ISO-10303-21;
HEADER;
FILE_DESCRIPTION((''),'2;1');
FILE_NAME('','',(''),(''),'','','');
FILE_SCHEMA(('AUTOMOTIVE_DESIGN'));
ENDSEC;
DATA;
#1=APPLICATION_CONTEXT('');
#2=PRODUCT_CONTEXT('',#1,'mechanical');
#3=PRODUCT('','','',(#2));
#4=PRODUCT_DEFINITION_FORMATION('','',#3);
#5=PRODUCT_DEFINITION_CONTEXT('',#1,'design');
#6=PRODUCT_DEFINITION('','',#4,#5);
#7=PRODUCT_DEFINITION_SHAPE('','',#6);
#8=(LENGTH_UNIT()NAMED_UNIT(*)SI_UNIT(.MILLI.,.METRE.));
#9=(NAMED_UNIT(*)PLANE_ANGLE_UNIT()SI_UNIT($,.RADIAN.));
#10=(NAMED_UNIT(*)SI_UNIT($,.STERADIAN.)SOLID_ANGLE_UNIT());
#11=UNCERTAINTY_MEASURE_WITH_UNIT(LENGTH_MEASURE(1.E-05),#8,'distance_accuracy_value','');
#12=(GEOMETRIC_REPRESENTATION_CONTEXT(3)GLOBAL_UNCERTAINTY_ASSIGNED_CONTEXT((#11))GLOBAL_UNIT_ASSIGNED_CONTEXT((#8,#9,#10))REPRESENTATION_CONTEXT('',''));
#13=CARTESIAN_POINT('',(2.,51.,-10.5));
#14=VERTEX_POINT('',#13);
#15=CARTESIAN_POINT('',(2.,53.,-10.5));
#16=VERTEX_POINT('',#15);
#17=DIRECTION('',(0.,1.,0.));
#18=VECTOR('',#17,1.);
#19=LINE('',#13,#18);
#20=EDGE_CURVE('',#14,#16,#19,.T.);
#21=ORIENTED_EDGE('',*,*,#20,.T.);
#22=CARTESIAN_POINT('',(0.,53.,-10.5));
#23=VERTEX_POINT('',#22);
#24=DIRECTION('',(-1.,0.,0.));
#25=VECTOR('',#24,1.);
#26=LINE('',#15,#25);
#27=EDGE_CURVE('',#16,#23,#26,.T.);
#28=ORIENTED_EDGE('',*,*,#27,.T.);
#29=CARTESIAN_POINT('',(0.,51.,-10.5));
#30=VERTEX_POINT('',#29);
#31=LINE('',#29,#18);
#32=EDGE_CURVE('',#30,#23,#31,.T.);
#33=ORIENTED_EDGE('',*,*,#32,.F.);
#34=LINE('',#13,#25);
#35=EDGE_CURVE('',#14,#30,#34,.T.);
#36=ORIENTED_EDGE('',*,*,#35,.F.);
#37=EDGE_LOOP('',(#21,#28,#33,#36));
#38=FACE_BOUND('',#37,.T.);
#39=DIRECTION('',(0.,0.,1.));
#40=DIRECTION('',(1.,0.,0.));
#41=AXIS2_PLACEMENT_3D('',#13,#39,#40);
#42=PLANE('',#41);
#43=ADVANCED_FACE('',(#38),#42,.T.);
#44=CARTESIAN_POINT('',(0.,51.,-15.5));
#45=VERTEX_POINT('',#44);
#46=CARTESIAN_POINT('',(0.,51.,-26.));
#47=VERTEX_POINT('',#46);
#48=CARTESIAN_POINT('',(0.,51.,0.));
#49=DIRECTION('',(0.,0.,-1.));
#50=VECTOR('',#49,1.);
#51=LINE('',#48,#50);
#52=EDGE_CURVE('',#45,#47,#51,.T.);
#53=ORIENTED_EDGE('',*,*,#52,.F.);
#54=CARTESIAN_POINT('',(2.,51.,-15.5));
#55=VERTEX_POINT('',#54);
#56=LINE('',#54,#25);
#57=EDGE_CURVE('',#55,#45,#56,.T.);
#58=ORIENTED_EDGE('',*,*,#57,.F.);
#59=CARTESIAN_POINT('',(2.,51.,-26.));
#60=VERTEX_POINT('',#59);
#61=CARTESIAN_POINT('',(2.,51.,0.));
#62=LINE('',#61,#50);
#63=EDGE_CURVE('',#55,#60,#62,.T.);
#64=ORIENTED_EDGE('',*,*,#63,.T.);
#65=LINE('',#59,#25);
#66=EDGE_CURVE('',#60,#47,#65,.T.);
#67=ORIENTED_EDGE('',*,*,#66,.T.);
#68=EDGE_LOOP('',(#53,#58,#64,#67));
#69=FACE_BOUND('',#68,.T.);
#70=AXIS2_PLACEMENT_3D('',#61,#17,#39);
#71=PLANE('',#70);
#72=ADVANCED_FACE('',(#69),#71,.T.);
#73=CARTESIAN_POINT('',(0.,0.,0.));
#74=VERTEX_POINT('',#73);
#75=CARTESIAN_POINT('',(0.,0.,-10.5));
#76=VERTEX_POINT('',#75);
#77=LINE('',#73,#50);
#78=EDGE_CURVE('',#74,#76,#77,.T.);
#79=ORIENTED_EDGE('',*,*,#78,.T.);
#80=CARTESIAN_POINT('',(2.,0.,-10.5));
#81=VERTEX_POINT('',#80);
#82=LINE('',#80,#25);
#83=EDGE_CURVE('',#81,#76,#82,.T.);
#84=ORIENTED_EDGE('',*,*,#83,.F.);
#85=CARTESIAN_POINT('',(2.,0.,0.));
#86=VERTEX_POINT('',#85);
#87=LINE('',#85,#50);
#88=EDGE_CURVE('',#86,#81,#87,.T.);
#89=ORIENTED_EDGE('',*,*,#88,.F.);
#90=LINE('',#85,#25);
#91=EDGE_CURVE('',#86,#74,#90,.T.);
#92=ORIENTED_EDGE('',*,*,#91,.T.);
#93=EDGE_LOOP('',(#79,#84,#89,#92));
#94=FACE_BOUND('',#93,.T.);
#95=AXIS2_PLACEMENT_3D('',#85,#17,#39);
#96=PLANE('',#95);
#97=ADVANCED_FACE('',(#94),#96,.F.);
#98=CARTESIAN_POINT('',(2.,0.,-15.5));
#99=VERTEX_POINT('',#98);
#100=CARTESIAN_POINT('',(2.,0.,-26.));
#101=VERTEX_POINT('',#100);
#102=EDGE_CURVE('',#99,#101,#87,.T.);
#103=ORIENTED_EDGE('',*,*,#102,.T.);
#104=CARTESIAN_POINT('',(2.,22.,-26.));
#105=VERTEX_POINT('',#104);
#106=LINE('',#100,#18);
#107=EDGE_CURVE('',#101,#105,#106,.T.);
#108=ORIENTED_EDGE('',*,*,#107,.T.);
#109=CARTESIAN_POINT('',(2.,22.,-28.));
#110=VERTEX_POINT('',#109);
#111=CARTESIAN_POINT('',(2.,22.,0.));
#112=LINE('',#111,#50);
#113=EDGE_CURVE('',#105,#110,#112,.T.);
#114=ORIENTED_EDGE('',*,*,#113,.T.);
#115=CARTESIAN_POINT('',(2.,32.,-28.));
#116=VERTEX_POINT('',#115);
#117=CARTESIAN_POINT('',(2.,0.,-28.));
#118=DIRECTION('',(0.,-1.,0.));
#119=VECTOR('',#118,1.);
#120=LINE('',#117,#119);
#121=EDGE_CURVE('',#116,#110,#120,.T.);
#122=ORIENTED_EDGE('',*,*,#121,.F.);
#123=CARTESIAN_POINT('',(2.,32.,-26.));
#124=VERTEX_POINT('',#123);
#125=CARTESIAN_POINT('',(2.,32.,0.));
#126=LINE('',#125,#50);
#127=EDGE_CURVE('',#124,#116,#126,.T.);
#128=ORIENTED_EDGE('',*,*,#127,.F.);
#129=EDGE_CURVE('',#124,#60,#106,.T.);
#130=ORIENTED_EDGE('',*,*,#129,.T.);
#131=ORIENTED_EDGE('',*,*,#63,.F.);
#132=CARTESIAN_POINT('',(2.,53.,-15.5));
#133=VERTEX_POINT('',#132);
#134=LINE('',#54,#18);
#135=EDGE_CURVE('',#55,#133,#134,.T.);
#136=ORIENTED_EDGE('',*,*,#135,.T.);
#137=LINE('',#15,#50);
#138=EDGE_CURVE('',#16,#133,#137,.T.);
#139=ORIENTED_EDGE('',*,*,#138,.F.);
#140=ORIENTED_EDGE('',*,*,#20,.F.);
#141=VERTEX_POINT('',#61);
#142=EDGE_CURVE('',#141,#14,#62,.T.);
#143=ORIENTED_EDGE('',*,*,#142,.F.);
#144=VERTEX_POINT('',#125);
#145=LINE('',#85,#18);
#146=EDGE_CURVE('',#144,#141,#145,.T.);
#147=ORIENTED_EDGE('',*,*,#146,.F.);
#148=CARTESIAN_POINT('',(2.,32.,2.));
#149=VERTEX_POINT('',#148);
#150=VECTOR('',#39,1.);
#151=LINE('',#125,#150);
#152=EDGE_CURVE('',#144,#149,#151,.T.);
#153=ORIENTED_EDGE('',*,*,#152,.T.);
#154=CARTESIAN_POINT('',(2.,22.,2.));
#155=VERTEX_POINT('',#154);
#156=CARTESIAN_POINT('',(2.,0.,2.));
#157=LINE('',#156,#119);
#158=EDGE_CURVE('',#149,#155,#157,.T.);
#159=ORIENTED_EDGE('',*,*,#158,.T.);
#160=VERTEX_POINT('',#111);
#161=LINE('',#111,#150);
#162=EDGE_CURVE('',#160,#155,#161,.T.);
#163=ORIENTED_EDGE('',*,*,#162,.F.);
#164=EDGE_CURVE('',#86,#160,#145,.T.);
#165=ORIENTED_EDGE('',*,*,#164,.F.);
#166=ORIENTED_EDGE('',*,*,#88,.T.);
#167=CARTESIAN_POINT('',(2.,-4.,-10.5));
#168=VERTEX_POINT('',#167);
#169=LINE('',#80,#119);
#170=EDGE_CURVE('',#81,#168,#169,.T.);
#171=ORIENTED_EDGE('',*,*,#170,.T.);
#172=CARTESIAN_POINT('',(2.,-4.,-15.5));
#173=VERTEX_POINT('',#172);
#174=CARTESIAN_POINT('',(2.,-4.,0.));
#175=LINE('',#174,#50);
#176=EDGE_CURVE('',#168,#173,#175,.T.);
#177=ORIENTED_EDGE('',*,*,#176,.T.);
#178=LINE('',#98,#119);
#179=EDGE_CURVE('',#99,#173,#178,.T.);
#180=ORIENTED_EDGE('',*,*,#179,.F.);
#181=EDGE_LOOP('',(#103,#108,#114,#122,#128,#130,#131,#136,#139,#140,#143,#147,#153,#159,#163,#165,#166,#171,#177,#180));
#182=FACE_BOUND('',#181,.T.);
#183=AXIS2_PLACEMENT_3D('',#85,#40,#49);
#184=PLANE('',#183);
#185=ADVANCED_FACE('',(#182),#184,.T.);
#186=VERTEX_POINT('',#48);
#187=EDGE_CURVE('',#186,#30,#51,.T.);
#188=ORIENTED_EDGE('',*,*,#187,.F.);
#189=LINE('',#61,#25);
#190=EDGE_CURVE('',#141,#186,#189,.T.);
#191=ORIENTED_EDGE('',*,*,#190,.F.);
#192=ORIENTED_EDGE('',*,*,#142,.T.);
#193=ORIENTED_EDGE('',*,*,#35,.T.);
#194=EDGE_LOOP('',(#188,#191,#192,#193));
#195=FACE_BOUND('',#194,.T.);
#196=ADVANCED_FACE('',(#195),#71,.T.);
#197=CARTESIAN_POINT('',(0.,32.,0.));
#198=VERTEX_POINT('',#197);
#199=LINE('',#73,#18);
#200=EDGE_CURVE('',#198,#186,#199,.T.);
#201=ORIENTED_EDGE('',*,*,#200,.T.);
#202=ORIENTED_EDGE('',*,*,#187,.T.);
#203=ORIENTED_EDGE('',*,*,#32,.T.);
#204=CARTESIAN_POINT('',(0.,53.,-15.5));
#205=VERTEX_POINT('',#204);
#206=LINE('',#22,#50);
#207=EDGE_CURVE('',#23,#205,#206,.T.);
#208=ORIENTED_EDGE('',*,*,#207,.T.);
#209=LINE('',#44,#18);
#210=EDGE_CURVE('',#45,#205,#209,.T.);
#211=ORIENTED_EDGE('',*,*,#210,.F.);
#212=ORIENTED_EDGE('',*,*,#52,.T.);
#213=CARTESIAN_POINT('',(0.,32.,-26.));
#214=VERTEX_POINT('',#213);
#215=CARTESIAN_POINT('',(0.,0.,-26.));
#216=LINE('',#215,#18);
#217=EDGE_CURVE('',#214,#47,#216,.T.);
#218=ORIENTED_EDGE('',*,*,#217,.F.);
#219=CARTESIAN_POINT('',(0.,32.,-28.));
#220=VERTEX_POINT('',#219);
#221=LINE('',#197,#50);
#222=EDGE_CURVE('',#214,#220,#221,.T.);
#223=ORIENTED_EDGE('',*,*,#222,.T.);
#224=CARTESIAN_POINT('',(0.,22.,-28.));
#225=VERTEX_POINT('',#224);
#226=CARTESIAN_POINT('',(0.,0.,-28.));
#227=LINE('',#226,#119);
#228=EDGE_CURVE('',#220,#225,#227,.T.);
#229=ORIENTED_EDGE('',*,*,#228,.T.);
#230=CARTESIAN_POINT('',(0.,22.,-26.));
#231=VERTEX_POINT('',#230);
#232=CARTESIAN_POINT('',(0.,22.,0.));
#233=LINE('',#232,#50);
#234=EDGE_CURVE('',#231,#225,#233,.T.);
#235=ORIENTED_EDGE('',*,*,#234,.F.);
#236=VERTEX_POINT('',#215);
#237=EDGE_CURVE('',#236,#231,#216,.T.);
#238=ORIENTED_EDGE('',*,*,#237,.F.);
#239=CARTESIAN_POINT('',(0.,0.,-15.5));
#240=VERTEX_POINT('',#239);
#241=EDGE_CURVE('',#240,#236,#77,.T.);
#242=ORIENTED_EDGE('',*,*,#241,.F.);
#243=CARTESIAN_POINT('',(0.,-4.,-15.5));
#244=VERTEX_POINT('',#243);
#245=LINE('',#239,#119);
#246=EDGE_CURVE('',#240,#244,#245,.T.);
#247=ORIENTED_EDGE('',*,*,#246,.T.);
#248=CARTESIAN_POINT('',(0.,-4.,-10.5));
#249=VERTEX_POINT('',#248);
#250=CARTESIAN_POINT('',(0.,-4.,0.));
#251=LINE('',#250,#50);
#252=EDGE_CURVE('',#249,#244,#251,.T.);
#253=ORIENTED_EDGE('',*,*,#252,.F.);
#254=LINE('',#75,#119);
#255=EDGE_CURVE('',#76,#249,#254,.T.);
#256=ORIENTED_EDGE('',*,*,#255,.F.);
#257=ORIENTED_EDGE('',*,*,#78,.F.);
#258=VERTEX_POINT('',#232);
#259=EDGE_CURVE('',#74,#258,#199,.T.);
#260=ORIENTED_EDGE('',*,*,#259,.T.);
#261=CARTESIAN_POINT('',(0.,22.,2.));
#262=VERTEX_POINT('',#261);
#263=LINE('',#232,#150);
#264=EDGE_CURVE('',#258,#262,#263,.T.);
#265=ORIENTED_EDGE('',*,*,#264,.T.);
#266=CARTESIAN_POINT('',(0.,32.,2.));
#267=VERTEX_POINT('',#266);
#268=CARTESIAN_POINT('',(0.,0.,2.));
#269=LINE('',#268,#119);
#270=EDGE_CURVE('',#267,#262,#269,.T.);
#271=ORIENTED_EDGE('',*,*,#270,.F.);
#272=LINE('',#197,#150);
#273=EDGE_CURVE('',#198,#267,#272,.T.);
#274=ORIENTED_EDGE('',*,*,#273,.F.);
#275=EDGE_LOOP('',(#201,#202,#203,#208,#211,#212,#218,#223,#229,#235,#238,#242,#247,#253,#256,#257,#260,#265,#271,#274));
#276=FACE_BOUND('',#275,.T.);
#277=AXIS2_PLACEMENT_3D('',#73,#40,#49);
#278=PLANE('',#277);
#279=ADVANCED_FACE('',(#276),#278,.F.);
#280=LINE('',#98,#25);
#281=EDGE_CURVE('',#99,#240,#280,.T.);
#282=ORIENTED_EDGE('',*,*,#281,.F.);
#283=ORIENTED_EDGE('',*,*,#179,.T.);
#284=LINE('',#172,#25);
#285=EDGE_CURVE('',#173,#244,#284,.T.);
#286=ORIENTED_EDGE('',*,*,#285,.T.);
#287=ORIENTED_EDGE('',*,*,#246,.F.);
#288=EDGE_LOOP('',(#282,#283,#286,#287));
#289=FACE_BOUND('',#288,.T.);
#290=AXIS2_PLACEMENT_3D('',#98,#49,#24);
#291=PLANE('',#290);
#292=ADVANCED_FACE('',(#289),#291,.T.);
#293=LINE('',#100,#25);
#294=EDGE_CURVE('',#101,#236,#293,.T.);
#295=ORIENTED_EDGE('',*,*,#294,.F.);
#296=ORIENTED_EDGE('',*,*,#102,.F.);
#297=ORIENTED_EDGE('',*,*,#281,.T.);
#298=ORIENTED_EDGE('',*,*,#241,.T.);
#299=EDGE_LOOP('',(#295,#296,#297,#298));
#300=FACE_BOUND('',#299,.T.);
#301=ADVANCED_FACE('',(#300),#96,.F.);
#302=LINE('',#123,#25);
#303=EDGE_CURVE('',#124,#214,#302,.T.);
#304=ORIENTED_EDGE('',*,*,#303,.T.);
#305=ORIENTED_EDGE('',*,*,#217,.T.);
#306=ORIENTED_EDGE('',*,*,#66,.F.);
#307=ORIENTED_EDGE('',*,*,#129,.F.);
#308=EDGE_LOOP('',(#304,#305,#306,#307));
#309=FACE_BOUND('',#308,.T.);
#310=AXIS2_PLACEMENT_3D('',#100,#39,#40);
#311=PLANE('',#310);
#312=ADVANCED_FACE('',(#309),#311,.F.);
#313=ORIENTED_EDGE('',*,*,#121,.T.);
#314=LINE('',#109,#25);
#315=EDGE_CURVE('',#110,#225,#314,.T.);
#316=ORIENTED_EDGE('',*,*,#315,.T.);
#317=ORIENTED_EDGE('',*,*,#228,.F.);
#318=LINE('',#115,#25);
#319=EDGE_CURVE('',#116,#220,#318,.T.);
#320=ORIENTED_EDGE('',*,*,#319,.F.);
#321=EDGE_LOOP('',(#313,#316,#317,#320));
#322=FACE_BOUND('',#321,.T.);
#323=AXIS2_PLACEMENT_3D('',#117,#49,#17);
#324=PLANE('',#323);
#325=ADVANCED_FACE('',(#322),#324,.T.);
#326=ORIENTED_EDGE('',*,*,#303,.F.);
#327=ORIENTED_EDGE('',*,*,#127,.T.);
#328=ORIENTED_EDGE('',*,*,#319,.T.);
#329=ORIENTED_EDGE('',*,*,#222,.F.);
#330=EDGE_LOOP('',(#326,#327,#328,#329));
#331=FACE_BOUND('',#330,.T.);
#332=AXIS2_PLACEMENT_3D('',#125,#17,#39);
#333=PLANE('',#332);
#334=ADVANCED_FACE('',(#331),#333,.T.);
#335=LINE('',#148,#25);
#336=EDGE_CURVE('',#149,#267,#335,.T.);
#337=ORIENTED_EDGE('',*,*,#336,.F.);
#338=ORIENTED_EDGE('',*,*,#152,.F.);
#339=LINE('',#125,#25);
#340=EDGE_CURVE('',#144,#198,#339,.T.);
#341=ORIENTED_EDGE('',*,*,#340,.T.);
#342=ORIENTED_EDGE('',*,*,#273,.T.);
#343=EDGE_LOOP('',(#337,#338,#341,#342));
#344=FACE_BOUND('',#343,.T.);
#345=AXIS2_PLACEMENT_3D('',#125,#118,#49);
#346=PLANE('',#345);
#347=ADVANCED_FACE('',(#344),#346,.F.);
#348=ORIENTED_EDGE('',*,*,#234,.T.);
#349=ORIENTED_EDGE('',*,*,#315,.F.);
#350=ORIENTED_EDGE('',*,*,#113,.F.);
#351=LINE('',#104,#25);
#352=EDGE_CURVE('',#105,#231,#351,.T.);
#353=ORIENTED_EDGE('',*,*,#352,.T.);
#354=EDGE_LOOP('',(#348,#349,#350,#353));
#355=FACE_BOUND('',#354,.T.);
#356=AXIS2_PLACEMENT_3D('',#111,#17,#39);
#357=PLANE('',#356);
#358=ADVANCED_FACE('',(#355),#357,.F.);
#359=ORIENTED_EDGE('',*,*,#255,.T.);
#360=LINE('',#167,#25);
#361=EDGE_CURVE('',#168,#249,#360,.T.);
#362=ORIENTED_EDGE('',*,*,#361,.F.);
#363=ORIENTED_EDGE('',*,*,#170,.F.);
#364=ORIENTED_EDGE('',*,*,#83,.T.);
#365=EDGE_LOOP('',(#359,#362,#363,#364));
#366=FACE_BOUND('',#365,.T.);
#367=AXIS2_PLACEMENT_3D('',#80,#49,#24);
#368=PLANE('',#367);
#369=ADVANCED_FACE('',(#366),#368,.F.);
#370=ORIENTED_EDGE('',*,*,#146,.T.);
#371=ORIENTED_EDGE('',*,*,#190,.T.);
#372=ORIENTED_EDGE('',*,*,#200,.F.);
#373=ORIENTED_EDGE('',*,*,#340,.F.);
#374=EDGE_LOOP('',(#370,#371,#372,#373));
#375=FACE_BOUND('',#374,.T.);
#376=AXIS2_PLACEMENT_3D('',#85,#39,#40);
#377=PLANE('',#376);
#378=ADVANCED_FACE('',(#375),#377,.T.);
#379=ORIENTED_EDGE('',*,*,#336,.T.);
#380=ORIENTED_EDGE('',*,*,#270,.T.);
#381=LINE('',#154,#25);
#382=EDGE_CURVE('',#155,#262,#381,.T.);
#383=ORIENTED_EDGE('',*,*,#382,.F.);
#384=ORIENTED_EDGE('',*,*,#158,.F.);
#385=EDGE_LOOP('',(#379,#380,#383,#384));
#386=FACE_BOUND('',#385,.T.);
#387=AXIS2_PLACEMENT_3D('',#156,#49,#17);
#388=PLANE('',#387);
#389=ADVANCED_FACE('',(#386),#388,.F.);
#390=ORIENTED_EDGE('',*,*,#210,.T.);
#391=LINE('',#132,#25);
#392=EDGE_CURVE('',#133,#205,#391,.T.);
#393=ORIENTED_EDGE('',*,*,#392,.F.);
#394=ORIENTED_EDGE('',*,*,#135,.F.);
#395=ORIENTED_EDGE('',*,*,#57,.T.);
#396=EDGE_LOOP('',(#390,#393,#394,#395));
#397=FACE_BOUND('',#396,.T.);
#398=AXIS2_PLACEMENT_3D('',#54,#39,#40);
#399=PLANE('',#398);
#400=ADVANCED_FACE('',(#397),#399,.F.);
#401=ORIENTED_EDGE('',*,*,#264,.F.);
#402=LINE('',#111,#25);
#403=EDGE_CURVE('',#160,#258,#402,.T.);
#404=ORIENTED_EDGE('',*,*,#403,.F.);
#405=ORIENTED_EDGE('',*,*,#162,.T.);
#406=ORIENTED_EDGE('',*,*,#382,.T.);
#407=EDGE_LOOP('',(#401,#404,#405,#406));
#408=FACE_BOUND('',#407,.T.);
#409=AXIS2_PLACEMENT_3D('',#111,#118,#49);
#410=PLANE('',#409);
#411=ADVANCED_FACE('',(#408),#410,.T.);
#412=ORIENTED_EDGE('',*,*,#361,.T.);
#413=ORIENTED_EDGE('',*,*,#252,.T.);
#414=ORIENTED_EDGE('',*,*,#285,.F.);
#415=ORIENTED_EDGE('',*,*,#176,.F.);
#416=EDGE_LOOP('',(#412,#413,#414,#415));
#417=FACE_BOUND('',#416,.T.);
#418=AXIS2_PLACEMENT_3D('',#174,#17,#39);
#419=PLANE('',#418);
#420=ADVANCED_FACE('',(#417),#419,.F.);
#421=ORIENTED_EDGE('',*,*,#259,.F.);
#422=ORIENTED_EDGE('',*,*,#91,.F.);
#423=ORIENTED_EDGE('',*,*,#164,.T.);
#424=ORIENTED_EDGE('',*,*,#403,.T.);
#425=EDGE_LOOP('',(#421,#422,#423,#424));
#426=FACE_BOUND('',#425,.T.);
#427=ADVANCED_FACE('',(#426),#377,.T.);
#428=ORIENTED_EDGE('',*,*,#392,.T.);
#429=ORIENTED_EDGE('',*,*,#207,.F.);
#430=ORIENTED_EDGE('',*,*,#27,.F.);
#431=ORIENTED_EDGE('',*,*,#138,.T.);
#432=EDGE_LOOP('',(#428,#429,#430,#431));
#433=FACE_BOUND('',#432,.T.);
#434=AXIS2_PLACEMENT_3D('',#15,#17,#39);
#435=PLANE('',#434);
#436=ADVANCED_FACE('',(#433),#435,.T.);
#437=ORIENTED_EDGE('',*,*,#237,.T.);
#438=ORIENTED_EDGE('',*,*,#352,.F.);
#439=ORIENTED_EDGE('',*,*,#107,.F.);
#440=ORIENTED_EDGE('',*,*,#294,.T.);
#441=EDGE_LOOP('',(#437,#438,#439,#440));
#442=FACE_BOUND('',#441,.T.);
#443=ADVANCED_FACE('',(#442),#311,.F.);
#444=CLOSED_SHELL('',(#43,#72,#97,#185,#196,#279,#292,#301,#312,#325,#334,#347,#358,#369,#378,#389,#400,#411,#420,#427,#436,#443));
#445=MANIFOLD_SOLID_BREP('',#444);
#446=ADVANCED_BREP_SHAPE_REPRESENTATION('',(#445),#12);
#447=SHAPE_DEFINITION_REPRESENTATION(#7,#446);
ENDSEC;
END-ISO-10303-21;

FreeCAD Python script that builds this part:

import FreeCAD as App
import Part
import Sketcher
from FreeCAD import Vector
Q = App.Units.Quantity

doc = App.newDocument("Part")
body = doc.addObject("PartDesign::Body", "Body")

sketch1 = body.newObject("Sketcher::SketchObject", "Sketch")
sketch1.AttachmentSupport = (doc.getObject("YZ_Plane"), [""])
sketch1.MapMode = "FlatFace"
sketch1.addGeometry([
    Part.LineSegment(Vector(0, 0, 0), Vector(0, -10.5, 0)),
    Part.LineSegment(Vector(0, -10.5, 0), Vector(-4, -10.5, 0)),
    Part.LineSegment(Vector(-4, -10.5, 0), Vector(-4, -15.5, 0)),
    Part.LineSegment(Vector(-4, -15.5, 0), Vector(0, -15.5, 0)),
    Part.LineSegment(Vector(0, -15.5, 0), Vector(0, -26, 0)),
    Part.LineSegment(Vector(0, -26, 0), Vector(22, -26, 0)),
    Part.LineSegment(Vector(22, -26, 0), Vector(22, -28, 0)),
    Part.LineSegment(Vector(22, -28, 0), Vector(32, -28, 0)),
    Part.LineSegment(Vector(32, -28, 0), Vector(32, -26, 0)),
    Part.LineSegment(Vector(32, -26, 0), Vector(51, -26, 0)),
    Part.LineSegment(Vector(51, -26, 0), Vector(51, -15.5, 0)),
    Part.LineSegment(Vector(51, -15.5, 0), Vector(53, -15.5, 0)),
    Part.LineSegment(Vector(53, -15.5, 0), Vector(53, -10.5, 0)),
    Part.LineSegment(Vector(53, -10.5, 0), Vector(51, -10.5, 0)),
    Part.LineSegment(Vector(51, -10.5, 0), Vector(51, 0, 0)),
    Part.LineSegment(Vector(51, 0, 0), Vector(32, 0, 0)),
    Part.LineSegment(Vector(32, 0, 0), Vector(32, 2, 0)),
    Part.LineSegment(Vector(32, 2, 0), Vector(22, 2, 0)),
    Part.LineSegment(Vector(22, 2, 0), Vector(22, 0, 0)),
    Part.LineSegment(Vector(22, 0, 0), Vector(0, 0, 0)),
], False)
sketch1.addConstraint([
    Sketcher.Constraint("Coincident", 0, 2, 1, 1),
    Sketcher.Constraint("Coincident", 1, 2, 2, 1),
    Sketcher.Constraint("Coincident", 2, 2, 3, 1),
    Sketcher.Constraint("Coincident", 3, 2, 4, 1),
    Sketcher.Constraint("Coincident", 4, 2, 5, 1),
    Sketcher.Constraint("Coincident", 5, 2, 6, 1),
    Sketcher.Constraint("Coincident", 6, 2, 7, 1),
    Sketcher.Constraint("Coincident", 7, 2, 8, 1),
    Sketcher.Constraint("Coincident", 8, 2, 9, 1),
    Sketcher.Constraint("Coincident", 9, 2, 10, 1),
    Sketcher.Constraint("Coincident", 10, 2, 11, 1),
    Sketcher.Constraint("Coincident", 11, 2, 12, 1),
    Sketcher.Constraint("Coincident", 12, 2, 13, 1),
    Sketcher.Constraint("Coincident", 13, 2, 14, 1),
    Sketcher.Constraint("Coincident", 14, 2, 15, 1),
    Sketcher.Constraint("Coincident", 15, 2, 16, 1),
    Sketcher.Constraint("Coincident", 16, 2, 17, 1),
    Sketcher.Constraint("Coincident", 17, 2, 18, 1),
    Sketcher.Constraint("Coincident", 18, 2, 19, 1),
    Sketcher.Constraint("Coincident", 19, 2, 0, 1),
    Sketcher.Constraint("Vertical", 0),
    Sketcher.Constraint("Horizontal", 1),
    Sketcher.Constraint("Vertical", 2),
    Sketcher.Constraint("Horizontal", 3),
    Sketcher.Constraint("Vertical", 4),
    Sketcher.Constraint("Horizontal", 5),
    Sketcher.Constraint("Vertical", 6),
    Sketcher.Constraint("Horizontal", 7),
    Sketcher.Constraint("Vertical", 8),
    Sketcher.Constraint("Horizontal", 9),
    Sketcher.Constraint("Vertical", 10),
    Sketcher.Constraint("Horizontal", 11),
    Sketcher.Constraint("Vertical", 12),
    Sketcher.Constraint("Horizontal", 13),
    Sketcher.Constraint("Vertical", 14),
    Sketcher.Constraint("Horizontal", 15),
    Sketcher.Constraint("Vertical", 16),
    Sketcher.Constraint("Horizontal", 17),
    Sketcher.Constraint("Vertical", 18),
    Sketcher.Constraint("Horizontal", 19),
    Sketcher.Constraint("Coincident", 19, 2, -1, 1),
    Sketcher.Constraint("PointOnObject", 3, 2, -2),
    Sketcher.Constraint("PointOnObject", 14, 2, -1),
    Sketcher.Constraint("Horizontal", 5, 2, 8, 2),
    Sketcher.Constraint("Horizontal", 3, 2, 10, 2),
    Sketcher.Constraint("Horizontal", 1, 2, 12, 2),
    Sketcher.Constraint("Vertical", 10, 2, 13, 2),
    Sketcher.Constraint("Vertical", 8, 2, 15, 2),
    Sketcher.Constraint("Vertical", 6, 2, 17, 2),
    Sketcher.Constraint("Equal", 0, 4),
    Sketcher.Constraint("Equal", 13, 6),
    Sketcher.Constraint("Equal", 8, 16),
    Sketcher.Constraint("DistanceX", 1, 2, 1, 1, Q("4 mm")),
    Sketcher.Constraint("DistanceX", 5, 1, 5, 2, Q("22 mm")),
    Sketcher.Constraint("DistanceX", 7, 1, 7, 2, Q("10 mm")),
    Sketcher.Constraint("DistanceX", 9, 1, 9, 2, Q("19 mm")),
    Sketcher.Constraint("DistanceX", 11, 1, 11, 2, Q("2 mm")),
    Sketcher.Constraint("DistanceY", 2, 2, 2, 1, Q("5 mm")),
    Sketcher.Constraint("DistanceY", 0, 2, 0, 1, Q("10.5 mm")),
])
pad1 = body.newObject("PartDesign::Pad", "Pad")
pad1.Profile = sketch1
pad1.Length = 2

doc.recompute()
